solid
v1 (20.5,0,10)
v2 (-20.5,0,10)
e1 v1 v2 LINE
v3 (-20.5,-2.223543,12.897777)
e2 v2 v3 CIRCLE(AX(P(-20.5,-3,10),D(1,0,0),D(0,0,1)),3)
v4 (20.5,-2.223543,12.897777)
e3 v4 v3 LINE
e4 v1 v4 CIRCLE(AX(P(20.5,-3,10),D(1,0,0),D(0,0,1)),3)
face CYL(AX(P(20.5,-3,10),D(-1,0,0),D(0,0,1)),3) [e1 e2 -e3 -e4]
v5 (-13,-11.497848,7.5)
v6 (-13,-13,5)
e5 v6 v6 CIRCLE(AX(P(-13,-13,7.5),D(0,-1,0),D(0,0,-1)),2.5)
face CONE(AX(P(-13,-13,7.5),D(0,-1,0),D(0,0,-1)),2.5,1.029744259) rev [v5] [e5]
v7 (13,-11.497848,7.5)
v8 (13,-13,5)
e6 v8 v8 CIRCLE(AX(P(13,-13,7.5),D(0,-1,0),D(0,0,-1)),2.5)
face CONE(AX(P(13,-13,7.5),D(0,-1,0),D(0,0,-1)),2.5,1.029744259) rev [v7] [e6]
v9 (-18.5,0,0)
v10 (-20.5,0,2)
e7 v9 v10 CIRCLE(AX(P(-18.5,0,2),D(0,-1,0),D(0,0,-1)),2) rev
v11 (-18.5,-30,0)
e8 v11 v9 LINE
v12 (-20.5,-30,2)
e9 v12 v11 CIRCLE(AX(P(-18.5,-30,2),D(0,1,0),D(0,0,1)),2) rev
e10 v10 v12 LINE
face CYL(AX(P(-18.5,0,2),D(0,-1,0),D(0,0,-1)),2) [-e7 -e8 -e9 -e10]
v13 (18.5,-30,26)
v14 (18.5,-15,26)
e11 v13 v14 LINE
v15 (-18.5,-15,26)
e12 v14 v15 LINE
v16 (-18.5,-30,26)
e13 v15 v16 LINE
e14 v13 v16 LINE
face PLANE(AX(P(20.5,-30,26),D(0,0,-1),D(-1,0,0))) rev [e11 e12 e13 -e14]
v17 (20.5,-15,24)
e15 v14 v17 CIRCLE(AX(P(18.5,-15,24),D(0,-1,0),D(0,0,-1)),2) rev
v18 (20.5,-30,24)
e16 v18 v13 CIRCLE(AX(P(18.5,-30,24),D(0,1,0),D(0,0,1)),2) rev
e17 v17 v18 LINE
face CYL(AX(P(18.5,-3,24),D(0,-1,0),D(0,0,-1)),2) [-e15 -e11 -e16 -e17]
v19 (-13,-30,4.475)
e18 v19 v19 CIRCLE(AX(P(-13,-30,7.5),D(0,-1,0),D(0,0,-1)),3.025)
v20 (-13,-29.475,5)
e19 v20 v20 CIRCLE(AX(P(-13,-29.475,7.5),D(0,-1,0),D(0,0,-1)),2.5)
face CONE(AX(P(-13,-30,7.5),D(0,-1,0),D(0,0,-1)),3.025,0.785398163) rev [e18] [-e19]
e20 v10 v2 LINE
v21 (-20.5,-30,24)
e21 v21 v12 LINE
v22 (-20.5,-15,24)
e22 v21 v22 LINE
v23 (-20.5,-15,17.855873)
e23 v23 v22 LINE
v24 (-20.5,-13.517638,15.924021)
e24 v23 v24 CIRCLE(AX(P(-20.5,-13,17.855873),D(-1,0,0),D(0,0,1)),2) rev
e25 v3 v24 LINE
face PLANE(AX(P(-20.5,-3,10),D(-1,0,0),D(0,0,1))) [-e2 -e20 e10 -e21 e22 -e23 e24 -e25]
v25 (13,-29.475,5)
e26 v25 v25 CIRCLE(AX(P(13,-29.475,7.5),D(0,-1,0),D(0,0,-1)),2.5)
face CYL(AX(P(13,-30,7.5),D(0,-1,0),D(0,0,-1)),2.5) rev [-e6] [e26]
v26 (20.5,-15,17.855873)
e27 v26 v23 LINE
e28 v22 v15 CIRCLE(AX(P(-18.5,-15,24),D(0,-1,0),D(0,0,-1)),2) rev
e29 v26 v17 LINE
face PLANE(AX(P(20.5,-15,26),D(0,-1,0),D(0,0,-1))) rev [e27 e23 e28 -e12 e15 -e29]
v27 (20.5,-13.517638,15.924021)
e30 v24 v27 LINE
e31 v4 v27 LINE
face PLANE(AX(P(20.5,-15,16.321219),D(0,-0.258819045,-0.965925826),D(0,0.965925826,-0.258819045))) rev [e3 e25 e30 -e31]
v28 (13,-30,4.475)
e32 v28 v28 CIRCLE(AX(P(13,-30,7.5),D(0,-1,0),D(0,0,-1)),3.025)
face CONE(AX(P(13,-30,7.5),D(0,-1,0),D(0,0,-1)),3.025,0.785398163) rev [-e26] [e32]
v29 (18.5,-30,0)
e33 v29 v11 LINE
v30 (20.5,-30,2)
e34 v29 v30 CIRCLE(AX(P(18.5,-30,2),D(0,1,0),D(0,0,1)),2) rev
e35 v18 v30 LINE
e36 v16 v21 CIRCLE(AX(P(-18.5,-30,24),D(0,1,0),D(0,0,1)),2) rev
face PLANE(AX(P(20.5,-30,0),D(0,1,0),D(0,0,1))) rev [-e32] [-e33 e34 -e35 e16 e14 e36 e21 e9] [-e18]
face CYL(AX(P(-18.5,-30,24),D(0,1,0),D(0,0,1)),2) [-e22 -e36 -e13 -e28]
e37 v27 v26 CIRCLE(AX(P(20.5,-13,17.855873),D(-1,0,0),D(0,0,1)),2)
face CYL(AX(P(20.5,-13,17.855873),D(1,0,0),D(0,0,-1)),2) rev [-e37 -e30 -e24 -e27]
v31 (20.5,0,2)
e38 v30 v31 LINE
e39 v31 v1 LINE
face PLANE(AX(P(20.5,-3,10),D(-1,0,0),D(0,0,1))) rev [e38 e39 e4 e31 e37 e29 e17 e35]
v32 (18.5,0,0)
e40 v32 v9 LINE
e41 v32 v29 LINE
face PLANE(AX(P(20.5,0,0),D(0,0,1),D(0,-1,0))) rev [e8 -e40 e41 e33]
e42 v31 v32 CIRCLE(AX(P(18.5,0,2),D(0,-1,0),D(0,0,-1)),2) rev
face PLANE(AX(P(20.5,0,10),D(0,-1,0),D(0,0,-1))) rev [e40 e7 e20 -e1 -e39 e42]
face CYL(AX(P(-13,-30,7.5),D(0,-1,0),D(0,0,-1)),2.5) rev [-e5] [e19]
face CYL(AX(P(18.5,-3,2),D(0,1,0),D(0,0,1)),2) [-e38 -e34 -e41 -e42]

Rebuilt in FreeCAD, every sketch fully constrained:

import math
import FreeCAD as App
import Part
import Sketcher
from FreeCAD import Vector
Q = App.Units.Quantity


def edges_at(feature, points):
    """Names of the edges that pass closest to the given points."""
    edges = feature.Shape.Edges
    near = lambda p: min(range(len(edges)), key=lambda i: edges[i].distToShape(Part.Vertex(*p))[0])
    return sorted({f"Edge{near(p) + 1}" for p in points})

doc = App.newDocument("Part")
body = doc.addObject("PartDesign::Body", "Body")

# Sketch on YZ plane
sketch1 = body.newObject("Sketcher::SketchObject", "Sketch")
sketch1.AttachmentSupport = (doc.getObject("YZ_Plane"), [""])
sketch1.MapMode = "FlatFace"
sketch1.addGeometry([
    Part.LineSegment(Vector(0, 0, 0), Vector(0, 10, 0)),  # 0
    Part.ArcOfCircle(Part.Circle(Vector(-3, 10, 0), Vector(0, 0, 1), 3), math.radians(0), math.radians(75)),  # 1
    Part.LineSegment(Vector(-2.2, 12.9, 0), Vector(-15, 16.3, 0)),  # 2
    Part.LineSegment(Vector(-15, 16.3, 0), Vector(-15, 26, 0)),  # 3
    Part.LineSegment(Vector(-15, 26, 0), Vector(-30, 26, 0)),  # 4
    Part.LineSegment(Vector(-30, 26, 0), Vector(-30, 0, 0)),  # 5
    Part.LineSegment(Vector(-30, 0, 0), Vector(0, 0, 0)),  # 6
], False)
sketch1.addConstraint([
    Sketcher.Constraint("Tangent", 0, 2, 1, 1),
    Sketcher.Constraint("Tangent", 1, 2, 2, 1),
    Sketcher.Constraint("Coincident", 2, 2, 3, 1),
    Sketcher.Constraint("Coincident", 3, 2, 4, 1),
    Sketcher.Constraint("Coincident", 4, 2, 5, 1),
    Sketcher.Constraint("Coincident", 5, 2, 6, 1),
    Sketcher.Constraint("Coincident", 6, 2, 0, 1),
    Sketcher.Constraint("Vertical", 0),
    Sketcher.Constraint("Vertical", 3),
    Sketcher.Constraint("Horizontal", 4),
    Sketcher.Constraint("Vertical", 5),
    Sketcher.Constraint("Horizontal", 6),
    Sketcher.Constraint("Coincident", 6, 2, -1, 1),
    Sketcher.Constraint("Radius", 1, Q("3 mm")),
    Sketcher.Constraint("DistanceX", 4, 2, 4, 1, Q("15 mm")),
    Sketcher.Constraint("DistanceX", 6, 1, 6, 2, Q("30 mm")),
    Sketcher.Constraint("DistanceY", 0, 1, 0, 2, Q("10 mm")),
    Sketcher.Constraint("DistanceY", 5, 2, 5, 1, Q("26 mm")),
    Sketcher.Constraint("Angle", 2, Q("165 deg")),
])
pad1 = body.newObject("PartDesign::Pad", "Pad")
pad1.Profile = sketch1
pad1.Length = 41
pad1.Midplane = True
doc.recompute()

fillet = body.newObject("PartDesign::Fillet", "Fillet")
fillet.Base = (pad1, edges_at(pad1, [
    (20.5, -22.5, 26),
    (20.5, -15, 0),
    (-20.5, -15, 0),
    (-20.5, -22.5, 26),
]))
fillet.Radius = 2

# Sketch on XZ plane
sketch2 = body.newObject("Sketcher::SketchObject", "Sketch001")
sketch2.AttachmentSupport = (doc.getObject("XZ_Plane"), [""])
sketch2.MapMode = "FlatFace"
sketch2.AttachmentOffset = App.Placement(Vector(0, 0, 30), App.Rotation())
sketch2.addGeometry([
    Part.Circle(Vector(13, 7.5, 0), Vector(0, 0, 1), 2.5),
    Part.Circle(Vector(-13, 7.5, 0), Vector(0, 0, 1), 2.5),
], False)
sketch2.addConstraint([
    Sketcher.Constraint("Equal", 0, 1),
    Sketcher.Constraint("Symmetric", 0, 3, 1, 3, -2),
    Sketcher.Constraint("Diameter", 0, Q("5 mm")),
    Sketcher.Constraint("DistanceX", -1, 1, 0, 3, Q("13 mm")),
    Sketcher.Constraint("DistanceY", -1, 1, 0, 3, Q("7.5 mm")),
])
doc.recompute()
hole = body.newObject("PartDesign::Hole", "Hole")
hole.Profile = sketch2
hole.ThreadType = "None"
hole.Diameter = 5
hole.DepthType = "Dimension"
hole.Depth = 17
hole.DrillPoint = "Angled"
hole.DrillPointAngle = 118
hole.HoleCutType = "Countersink"
hole.HoleCutDiameter = 6.05
hole.HoleCutCountersinkAngle = 90
doc.recompute()

fillet2 = body.newObject("PartDesign::Fillet", "Fillet001")
fillet2.Base = (hole, edges_at(hole, [(0, -15, 16.321)]))
fillet2.Radius = 2

doc.recompute()
